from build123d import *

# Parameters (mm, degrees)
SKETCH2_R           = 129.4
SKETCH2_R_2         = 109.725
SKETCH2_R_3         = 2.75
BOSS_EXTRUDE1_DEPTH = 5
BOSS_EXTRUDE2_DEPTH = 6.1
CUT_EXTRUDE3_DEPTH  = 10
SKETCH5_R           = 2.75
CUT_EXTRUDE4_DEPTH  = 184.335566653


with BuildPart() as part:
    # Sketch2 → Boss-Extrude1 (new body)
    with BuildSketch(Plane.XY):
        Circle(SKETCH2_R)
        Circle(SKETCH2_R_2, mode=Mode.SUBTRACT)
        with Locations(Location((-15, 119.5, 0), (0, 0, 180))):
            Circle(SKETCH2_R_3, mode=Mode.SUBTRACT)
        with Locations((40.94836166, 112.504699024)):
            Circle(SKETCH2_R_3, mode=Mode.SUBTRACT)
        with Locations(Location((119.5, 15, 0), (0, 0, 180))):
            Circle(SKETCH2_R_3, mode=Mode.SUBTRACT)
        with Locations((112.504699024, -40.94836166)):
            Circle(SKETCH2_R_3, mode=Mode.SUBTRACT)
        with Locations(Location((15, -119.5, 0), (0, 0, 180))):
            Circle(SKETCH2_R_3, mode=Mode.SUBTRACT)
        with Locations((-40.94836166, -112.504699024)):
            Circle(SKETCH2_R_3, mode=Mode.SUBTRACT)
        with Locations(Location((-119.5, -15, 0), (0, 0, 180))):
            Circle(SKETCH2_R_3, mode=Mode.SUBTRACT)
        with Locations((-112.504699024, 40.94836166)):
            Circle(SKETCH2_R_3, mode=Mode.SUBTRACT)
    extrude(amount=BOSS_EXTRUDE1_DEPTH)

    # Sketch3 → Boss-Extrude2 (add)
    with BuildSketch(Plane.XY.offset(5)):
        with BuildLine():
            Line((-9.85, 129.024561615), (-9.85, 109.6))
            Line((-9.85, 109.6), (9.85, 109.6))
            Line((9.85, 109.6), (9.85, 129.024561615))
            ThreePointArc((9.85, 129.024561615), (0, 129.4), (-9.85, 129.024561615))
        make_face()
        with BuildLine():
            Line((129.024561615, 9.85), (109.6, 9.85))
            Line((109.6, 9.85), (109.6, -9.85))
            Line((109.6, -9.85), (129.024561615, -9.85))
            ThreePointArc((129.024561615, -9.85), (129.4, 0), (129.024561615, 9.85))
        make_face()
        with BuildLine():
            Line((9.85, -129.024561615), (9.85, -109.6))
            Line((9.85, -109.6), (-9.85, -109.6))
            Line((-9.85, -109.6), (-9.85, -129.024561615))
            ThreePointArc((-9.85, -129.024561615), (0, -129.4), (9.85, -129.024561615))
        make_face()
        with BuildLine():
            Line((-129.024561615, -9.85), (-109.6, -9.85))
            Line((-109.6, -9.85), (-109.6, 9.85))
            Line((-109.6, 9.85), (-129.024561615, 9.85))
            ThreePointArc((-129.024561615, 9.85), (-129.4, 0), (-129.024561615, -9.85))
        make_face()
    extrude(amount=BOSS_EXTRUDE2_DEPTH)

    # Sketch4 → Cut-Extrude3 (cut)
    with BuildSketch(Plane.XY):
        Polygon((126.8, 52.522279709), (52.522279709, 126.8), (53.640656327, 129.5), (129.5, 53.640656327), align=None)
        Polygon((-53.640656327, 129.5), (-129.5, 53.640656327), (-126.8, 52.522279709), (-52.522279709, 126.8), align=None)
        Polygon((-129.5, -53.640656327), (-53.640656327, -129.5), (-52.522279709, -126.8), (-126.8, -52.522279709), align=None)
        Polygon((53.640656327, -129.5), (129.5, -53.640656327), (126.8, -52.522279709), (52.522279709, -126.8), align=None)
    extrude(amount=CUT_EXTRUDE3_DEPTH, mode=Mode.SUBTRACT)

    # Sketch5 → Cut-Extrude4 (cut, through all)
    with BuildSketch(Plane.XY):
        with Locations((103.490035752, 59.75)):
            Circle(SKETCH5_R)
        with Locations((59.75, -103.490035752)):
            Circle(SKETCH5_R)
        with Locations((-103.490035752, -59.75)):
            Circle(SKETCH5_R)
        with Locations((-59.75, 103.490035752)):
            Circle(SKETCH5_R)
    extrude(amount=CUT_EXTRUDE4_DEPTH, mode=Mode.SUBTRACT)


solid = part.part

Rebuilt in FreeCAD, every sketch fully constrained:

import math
import FreeCAD as App
import Part
import Sketcher

V = App.Vector
Q = App.Units.Quantity


def add_polygon(sketch, points):
    """Adds a closed chain of lines whose ends are joined by coincident constraints."""
    first, n = sketch.GeometryCount, len(points)
    for a, b in zip(points, points[1:] + points[:1]):
        sketch.addGeometry(Part.LineSegment(App.Vector(*a, 0), App.Vector(*b, 0)), False)
    for i in range(n):
        sketch.addConstraint(Sketcher.Constraint("Coincident", first + i, 2, first + (i + 1) % n, 1))

doc = App.newDocument("Part")
params = doc.addObject("Spreadsheet::Sheet", "Params")
for row, (alias, value) in enumerate([
    ("sketch1_diameter", "258.8 mm"),
    ("sketch1_diameter2", "5.5 mm"),
    ("sketch1_diameter3", "219.45 mm"),
    ("pad1_length", "5 mm"),
    ("sketch2_radius", "129.4 mm"),
    ("sketch2_width", "19.7 mm"),
    ("pad2_length", "6.1 mm"),
    ("pocket1_length", "10 mm"),
    ("sketch4_diameter", "5.5 mm"),
], start=1):
    params.set(f"A{row}", alias)
    params.set(f"B{row}", "=" + value)
    params.setAlias(f"B{row}", alias)

body = doc.addObject("PartDesign::Body", "Body")

# Sketch on XY plane
sketch1 = body.newObject("Sketcher::SketchObject", "Sketch")
sketch1.AttachmentSupport = (doc.getObject("XY_Plane"), [""])
sketch1.MapMode = "FlatFace"
sketch1.addGeometry([
    Part.Circle(V(0, 0, 0), V(0, 0, 1), 129.4),  # 0
    Part.Circle(V(-40.948362, -112.504699, 0), V(0, 0, 1), 2.75),  # 1
    Part.Circle(V(-119.5, -15, 0), V(0, 0, 1), 2.75),  # 2
    Part.Circle(V(15, -119.5, 0), V(0, 0, 1), 2.75),  # 3
    Part.Circle(V(112.504699, -40.948362, 0), V(0, 0, 1), 2.75),  # 4
    Part.Circle(V(-112.504699, 40.948362, 0), V(0, 0, 1), 2.75),  # 5
    Part.Circle(V(-15, 119.5, 0), V(0, 0, 1), 2.75),  # 6
    Part.Circle(V(0, 0, 0), V(0, 0, 1), 109.725),  # 7
    Part.Circle(V(119.5, 15, 0), V(0, 0, 1), 2.75),  # 8
    Part.Circle(V(40.948362, 112.504699, 0), V(0, 0, 1), 2.75),  # 9
], False)
sketch1.addConstraint([
    Sketcher.Constraint("Coincident", 0, 3, -1, 1),
    Sketcher.Constraint("Coincident", 7, 3, -1, 1),
    Sketcher.Constraint("Equal", 1, 2),
    Sketcher.Constraint("Equal", 2, 3),
    Sketcher.Constraint("Equal", 3, 4),
    Sketcher.Constraint("Equal", 4, 5),
    Sketcher.Constraint("Equal", 5, 6),
    Sketcher.Constraint("Equal", 6, 8),
    Sketcher.Constraint("Equal", 8, 9),
    Sketcher.Constraint("Symmetric", 4, 3, 5, 3, -1, 1),
    Sketcher.Constraint("Symmetric", 3, 3, 6, 3, -1, 1),
    Sketcher.Constraint("Symmetric", 2, 3, 8, 3, -1, 1),
    Sketcher.Constraint("Symmetric", 1, 3, 9, 3, -1, 1),
    Sketcher.Constraint("Diameter", 0, 258.8),
    Sketcher.Constraint("Diameter", 1, 5.5),
    Sketcher.Constraint("Diameter", 7, 219.45),
    Sketcher.Constraint("DistanceY", 2, 3, -1, 1, 15.0),
    Sketcher.Constraint("DistanceX", -1, 1, 3, 3, 15.0),
    Sketcher.Constraint("DistanceX", 2, 3, -1, 1, 119.5),
    Sketcher.Constraint("DistanceY", 3, 3, -1, 1, 119.5),
    Sketcher.Constraint("DistanceY", 1, 3, -1, 1, 112.504699),
    Sketcher.Constraint("DistanceX", -1, 1, 4, 3, 112.504699),
    Sketcher.Constraint("DistanceX", 1, 3, -1, 1, 40.948362),
    Sketcher.Constraint("DistanceY", 4, 3, -1, 1, 40.948362),
])
sketch1.setExpression("Constraints[13]", "Params.sketch1_diameter")
sketch1.setExpression("Constraints[14]", "Params.sketch1_diameter2")
sketch1.setExpression("Constraints[15]", "Params.sketch1_diameter3")
pad1 = body.newObject("PartDesign::Pad", "Pad")
pad1.Profile = sketch1
pad1.setExpression("Length", "Params.pad1_length")

# Sketch on XY plane
sketch2 = body.newObject("Sketcher::SketchObject", "Sketch001")
sketch2.AttachmentSupport = (doc.getObject("XY_Plane"), [""])
sketch2.MapMode = "FlatFace"
sketch2.AttachmentOffset = App.Placement(V(0, 0, 5), App.Rotation())
sketch2.addGeometry([
    Part.LineSegment(V(-9.85, 129.024562, 0), V(-9.85, 109.6, 0)),  # 0
    Part.LineSegment(V(-9.85, 109.6, 0), V(9.85, 109.6, 0)),  # 1
    Part.LineSegment(V(9.85, 109.6, 0), V(9.85, 129.024562, 0)),  # 2
    Part.ArcOfCircle(Part.Circle(V(0, 0, 0), V(0, 0, 1), 129.4), math.radians(85.63439), math.radians(94.36561)),  # 3
    Part.LineSegment(V(129.024562, 9.85, 0), V(109.6, 9.85, 0)),  # 4
    Part.LineSegment(V(109.6, 9.85, 0), V(109.6, -9.85, 0)),  # 5
    Part.LineSegment(V(109.6, -9.85, 0), V(129.024562, -9.85, 0)),  # 6
    Part.ArcOfCircle(Part.Circle(V(0, 0, 0), V(0, 0, 1), 129.4), math.radians(-4.36561), math.radians(4.36561)),  # 7
    Part.LineSegment(V(9.85, -129.024562, 0), V(9.85, -109.6, 0)),  # 8
    Part.LineSegment(V(9.85, -109.6, 0), V(-9.85, -109.6, 0)),  # 9
    Part.LineSegment(V(-9.85, -109.6, 0), V(-9.85, -129.024562, 0)),  # 10
    Part.ArcOfCircle(Part.Circle(V(0, 0, 0), V(0, 0, 1), 129.4), math.radians(-94.36561), math.radians(-85.63439)),  # 11
    Part.LineSegment(V(-129.024562, -9.85, 0), V(-109.6, -9.85, 0)),  # 12
    Part.LineSegment(V(-109.6, -9.85, 0), V(-109.6, 9.85, 0)),  # 13
    Part.LineSegment(V(-109.6, 9.85, 0), V(-129.024562, 9.85, 0)),  # 14
    Part.ArcOfCircle(Part.Circle(V(0, 0, 0), V(0, 0, 1), 129.4), math.radians(175.63439), math.radians(184.36561)),  # 15
], False)
sketch2.addConstraint([
    Sketcher.Constraint("Coincident", 0, 2, 1, 1),
    Sketcher.Constraint("Coincident", 1, 2, 2, 1),
    Sketcher.Constraint("Coincident", 2, 2, 3, 1),
    Sketcher.Constraint("Coincident", 3, 2, 0, 1),
    Sketcher.Constraint("Coincident", 4, 2, 5, 1),
    Sketcher.Constraint("Coincident", 5, 2, 6, 1),
    Sketcher.Constraint("Coincident", 6, 2, 7, 1),
    Sketcher.Constraint("Coincident", 7, 2, 4, 1),
    Sketcher.Constraint("Coincident", 8, 2, 9, 1),
    Sketcher.Constraint("Coincident", 9, 2, 10, 1),
    Sketcher.Constraint("Coincident", 10, 2, 11, 1),
    Sketcher.Constraint("Coincident", 11, 2, 8, 1),
    Sketcher.Constraint("Coincident", 12, 2, 13, 1),
    Sketcher.Constraint("Coincident", 13, 2, 14, 1),
    Sketcher.Constraint("Coincident", 14, 2, 15, 1),
    Sketcher.Constraint("Coincident", 15, 2, 12, 1),
    Sketcher.Constraint("Vertical", 0),
    Sketcher.Constraint("Horizontal", 1),
    Sketcher.Constraint("Vertical", 2),
    Sketcher.Constraint("Horizontal", 4),
    Sketcher.Constraint("Vertical", 5),
    Sketcher.Constraint("Horizontal", 6),
    Sketcher.Constraint("Vertical", 8),
    Sketcher.Constraint("Horizontal", 9),
    Sketcher.Constraint("Vertical", 10),
    Sketcher.Constraint("Horizontal", 12),
    Sketcher.Constraint("Vertical", 13),
    Sketcher.Constraint("Horizontal", 14),
    Sketcher.Constraint("Coincident", 3, 3, -1, 1),
    Sketcher.Constraint("Coincident", 7, 3, -1, 1),
    Sketcher.Constraint("Coincident", 11, 3, -1, 1),
    Sketcher.Constraint("Coincident", 15, 3, -1, 1),
    Sketcher.Constraint("Equal", 3, 7),
    Sketcher.Constraint("Equal", 7, 11),
    Sketcher.Constraint("Equal", 11, 15),
    Sketcher.Constraint("Symmetric", 0, 2, 8, 2, -1, 1),
    Sketcher.Constraint("Symmetric", 4, 2, 12, 2, -1, 1),
    Sketcher.Constraint("Horizontal", 2, 2, 3, 2),
    Sketcher.Constraint("Horizontal", 10, 2, 11, 2),
    Sketcher.Constraint("Horizontal", 6, 2, 12, 2),
    Sketcher.Constraint("Horizontal", 7, 2, 13, 2),
    Sketcher.Constraint("Equal", 14, 0),
    Sketcher.Constraint("Equal", 9, 5),
    Sketcher.Constraint("Radius", 3, 129.4),
    Sketcher.Constraint("DistanceX", 1, 1, 1, 2, 19.7),
    Sketcher.Constraint("DistanceY", -1, 1, 0, 2, 109.6),
])
sketch2.setExpression("Constraints[43]", "Params.sketch2_radius")
sketch2.setExpression("Constraints[44]", "Params.sketch2_width")
pad2 = body.newObject("PartDesign::Pad", "Pad001")
pad2.Profile = sketch2
pad2.setExpression("Length", "Params.pad2_length")

# Sketch on XY plane
sketch3 = body.newObject("Sketcher::SketchObject", "Sketch002")
sketch3.AttachmentSupport = (doc.getObject("XY_Plane"), [""])
sketch3.MapMode = "FlatFace"
add_polygon(sketch3, [(52.52228, 126.8), (126.8, 52.52228), (129.5, 53.640656), (53.640656, 129.5)])  # lines 0-3
add_polygon(sketch3, [(-53.640656, 129.5), (-129.5, 53.640656), (-126.8, 52.52228), (-52.52228, 126.8)])  # lines 4-7
add_polygon(sketch3, [(-129.5, -53.640656), (-53.640656, -129.5), (-52.52228, -126.8), (-126.8, -52.52228)])  # lines 8-11
add_polygon(sketch3, [(53.640656, -129.5), (129.5, -53.640656), (126.8, -52.52228), (52.52228, -126.8)])  # lines 12-15
sketch3.addConstraint([
    Sketcher.Constraint("Symmetric", 2, 2, 8, 2, -1, 1),
    Sketcher.Constraint("Symmetric", 3, 2, 9, 2, -1, 1),
    Sketcher.Constraint("Symmetric", 0, 2, 10, 2, -1, 1),
    Sketcher.Constraint("Symmetric", 1, 2, 11, 2, -1, 1),
    Sketcher.Constraint("Symmetric", 4, 2, 12, 2, -1, 1),
    Sketcher.Constraint("Symmetric", 5, 2, 13, 2, -1, 1),
    Sketcher.Constraint("Symmetric", 6, 2, 14, 2, -1, 1),
    Sketcher.Constraint("Symmetric", 7, 2, 15, 2, -1, 1),
    Sketcher.Constraint("Symmetric", 1, 2, 4, 2, -2),
    Sketcher.Constraint("Symmetric", 0, 2, 5, 2, -2),
    Sketcher.Constraint("Symmetric", 3, 2, 6, 2, -2),
    Sketcher.Constraint("Symmetric", 2, 2, 7, 2, -2),
    Sketcher.Constraint("Parallel", 0, 2),
    Sketcher.Constraint("Perpendicular", 2, 4),
    Sketcher.Constraint("Perpendicular", 3, 5),
    Sketcher.Constraint("Angle", 1, Q("22.5 deg")),
    Sketcher.Constraint("DistanceX", 4, 2, 1, 2, 259.0),
    Sketcher.Constraint("DistanceX", -1, 1, 0, 2, 126.8),
    Sketcher.Constraint("DistanceY", -1, 1, 2, 2, 129.5),
    Sketcher.Constraint("Distance", 0, 105.044559),
])
pocket1 = body.newObject("PartDesign::Pocket", "Pocket")
pocket1.Profile = sketch3
pocket1.setExpression("Length", "Params.pocket1_length")
pocket1.Reversed = True

# Sketch on XY plane
sketch4 = body.newObject("Sketcher::SketchObject", "Sketch003")
sketch4.AttachmentSupport = (doc.getObject("XY_Plane"), [""])
sketch4.MapMode = "FlatFace"
sketch4.addGeometry([
    Part.Circle(V(103.490036, 59.75, 0), V(0, 0, 1), 2.75),
    Part.Circle(V(59.75, -103.490036, 0), V(0, 0, 1), 2.75),
    Part.Circle(V(-103.490036, -59.75, 0), V(0, 0, 1), 2.75),
    Part.Circle(V(-59.75, 103.490036, 0), V(0, 0, 1), 2.75),
], False)
sketch4.addConstraint([
    Sketcher.Constraint("Equal", 0, 1),
    Sketcher.Constraint("Equal", 1, 2),
    Sketcher.Constraint("Equal", 2, 3),
    Sketcher.Constraint("Symmetric", 0, 3, 2, 3, -1, 1),
    Sketcher.Constraint("Symmetric", 1, 3, 3, 3, -1, 1),
    Sketcher.Constraint("Diameter", 0, 5.5),
    Sketcher.Constraint("DistanceY", 2, 3, 0, 3, 119.5),
    Sketcher.Constraint("DistanceX", 3, 3, 1, 3, 119.5),
    Sketcher.Constraint("DistanceX", 2, 3, 0, 3, 206.980072),
    Sketcher.Constraint("DistanceY", 1, 3, 3, 3, 206.980072),
])
sketch4.setExpression("Constraints[5]", "Params.sketch4_diameter")
pocket2 = body.newObject("PartDesign::Pocket", "Pocket001")
pocket2.Profile = sketch4
pocket2.Type = "ThroughAll"
pocket2.Reversed = True

doc.recompute()
